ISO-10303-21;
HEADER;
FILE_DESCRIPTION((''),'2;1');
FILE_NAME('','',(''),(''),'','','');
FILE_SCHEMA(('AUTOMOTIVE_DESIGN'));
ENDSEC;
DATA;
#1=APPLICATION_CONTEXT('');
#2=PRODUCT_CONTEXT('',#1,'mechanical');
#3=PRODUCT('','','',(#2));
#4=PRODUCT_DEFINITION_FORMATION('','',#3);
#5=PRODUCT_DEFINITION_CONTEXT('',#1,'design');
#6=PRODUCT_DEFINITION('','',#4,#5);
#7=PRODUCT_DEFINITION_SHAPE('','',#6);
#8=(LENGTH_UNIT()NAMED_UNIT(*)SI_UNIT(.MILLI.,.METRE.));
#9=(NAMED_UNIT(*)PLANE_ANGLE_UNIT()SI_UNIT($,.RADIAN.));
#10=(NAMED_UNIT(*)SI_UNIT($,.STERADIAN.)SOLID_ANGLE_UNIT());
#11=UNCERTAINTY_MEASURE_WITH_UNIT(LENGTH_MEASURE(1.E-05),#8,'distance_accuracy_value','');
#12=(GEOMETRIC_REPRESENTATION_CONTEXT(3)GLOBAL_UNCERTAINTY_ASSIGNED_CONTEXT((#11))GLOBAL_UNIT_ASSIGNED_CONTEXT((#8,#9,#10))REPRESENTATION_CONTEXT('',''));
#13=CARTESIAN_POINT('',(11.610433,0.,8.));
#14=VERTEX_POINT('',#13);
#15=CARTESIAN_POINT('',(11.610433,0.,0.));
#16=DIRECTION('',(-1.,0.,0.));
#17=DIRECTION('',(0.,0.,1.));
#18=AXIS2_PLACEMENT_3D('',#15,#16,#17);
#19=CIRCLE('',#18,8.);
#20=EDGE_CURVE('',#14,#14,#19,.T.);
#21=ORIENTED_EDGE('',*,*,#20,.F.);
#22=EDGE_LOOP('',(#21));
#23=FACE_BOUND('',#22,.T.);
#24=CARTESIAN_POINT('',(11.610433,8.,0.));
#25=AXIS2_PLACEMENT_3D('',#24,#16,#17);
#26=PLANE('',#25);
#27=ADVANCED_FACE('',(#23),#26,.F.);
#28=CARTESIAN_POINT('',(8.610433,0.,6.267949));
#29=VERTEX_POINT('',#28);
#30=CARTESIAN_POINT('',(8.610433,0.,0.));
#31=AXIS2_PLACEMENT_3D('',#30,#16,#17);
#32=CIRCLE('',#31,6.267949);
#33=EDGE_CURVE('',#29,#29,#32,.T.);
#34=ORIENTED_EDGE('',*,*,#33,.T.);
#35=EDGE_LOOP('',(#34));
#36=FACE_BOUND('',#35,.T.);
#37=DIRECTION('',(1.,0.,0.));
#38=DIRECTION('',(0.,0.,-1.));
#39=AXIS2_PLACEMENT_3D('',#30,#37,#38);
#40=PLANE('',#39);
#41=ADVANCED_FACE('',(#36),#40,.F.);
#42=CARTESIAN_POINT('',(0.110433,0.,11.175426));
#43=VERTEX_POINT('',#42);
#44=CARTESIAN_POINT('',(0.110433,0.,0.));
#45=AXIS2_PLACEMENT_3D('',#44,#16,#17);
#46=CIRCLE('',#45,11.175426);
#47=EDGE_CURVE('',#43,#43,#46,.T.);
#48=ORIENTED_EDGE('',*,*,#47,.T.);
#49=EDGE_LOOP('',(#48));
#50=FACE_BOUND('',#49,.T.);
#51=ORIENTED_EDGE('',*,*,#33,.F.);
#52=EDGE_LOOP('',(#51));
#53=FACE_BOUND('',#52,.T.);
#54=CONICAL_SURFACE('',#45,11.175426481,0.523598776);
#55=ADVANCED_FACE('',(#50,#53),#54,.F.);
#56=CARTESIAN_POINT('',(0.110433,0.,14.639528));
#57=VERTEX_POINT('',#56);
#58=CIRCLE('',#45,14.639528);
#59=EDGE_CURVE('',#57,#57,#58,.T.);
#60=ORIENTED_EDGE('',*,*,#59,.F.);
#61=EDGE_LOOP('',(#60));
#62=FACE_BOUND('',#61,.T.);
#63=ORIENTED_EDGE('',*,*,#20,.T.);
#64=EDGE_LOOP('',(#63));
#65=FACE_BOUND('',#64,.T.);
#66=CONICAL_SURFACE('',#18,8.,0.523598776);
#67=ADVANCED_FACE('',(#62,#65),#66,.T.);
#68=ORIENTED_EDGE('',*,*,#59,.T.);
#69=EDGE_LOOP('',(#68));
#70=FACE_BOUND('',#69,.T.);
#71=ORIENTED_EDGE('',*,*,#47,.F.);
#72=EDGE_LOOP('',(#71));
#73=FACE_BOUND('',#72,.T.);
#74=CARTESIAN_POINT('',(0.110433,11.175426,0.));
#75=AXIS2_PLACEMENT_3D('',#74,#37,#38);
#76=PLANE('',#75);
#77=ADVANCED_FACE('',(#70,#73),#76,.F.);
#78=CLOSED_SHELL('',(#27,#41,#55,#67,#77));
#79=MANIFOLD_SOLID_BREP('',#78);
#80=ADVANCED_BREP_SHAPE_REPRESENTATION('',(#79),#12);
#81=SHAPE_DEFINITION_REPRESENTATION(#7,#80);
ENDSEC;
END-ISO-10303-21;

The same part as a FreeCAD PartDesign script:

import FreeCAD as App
import Part
import Sketcher
Q = App.Units.Quantity


def add_polygon(sketch, points):
    """Adds a closed chain of lines whose ends are joined by coincident constraints."""
    first, n = sketch.GeometryCount, len(points)
    for a, b in zip(points, points[1:] + points[:1]):
        sketch.addGeometry(Part.LineSegment(App.Vector(*a, 0), App.Vector(*b, 0)), False)
    for i in range(n):
        sketch.addConstraint(Sketcher.Constraint("Coincident", first + i, 2, first + (i + 1) % n, 1))

doc = App.newDocument("Part")
body = doc.addObject("PartDesign::Body", "Body")

# Sketch on XY plane
sketch1 = body.newObject("Sketcher::SketchObject", "Sketch")
sketch1.AttachmentSupport = (doc.getObject("XY_Plane"), [""])
sketch1.MapMode = "FlatFace"
add_polygon(sketch1, [(11.6, 8), (0.1, 14.6), (0.1, 11.2), (8.6, 6.3), (8.6, 0), (11.6, 0)])  # lines 0-5
sketch1.addConstraint(Sketcher.Constraint("Vertical", 1))
sketch1.addConstraint(Sketcher.Constraint("Vertical", 3))
sketch1.addConstraint(Sketcher.Constraint("Horizontal", 4))
sketch1.addConstraint(Sketcher.Constraint("Vertical", 5))
sketch1.addConstraint(Sketcher.Constraint("PointOnObject", 3, 2, -1))
sketch1.addConstraint(Sketcher.Constraint("Parallel", 0, 2))
sketch1.addConstraint(Sketcher.Constraint("DistanceX", 4, 1, 4, 2, 3.0))
sketch1.addConstraint(Sketcher.Constraint("DistanceY", 5, 1, 5, 2, 8.0))
sketch1.addConstraint(Sketcher.Constraint("Angle", 0, Q("150 deg")))
sketch1.addConstraint(Sketcher.Constraint("DistanceX", 1, 2, 2, 2, 8.5))
sketch1.addConstraint(Sketcher.Constraint("DistanceY", 1, 2, 1, 1, 3.464102))
sketch1.addConstraint(Sketcher.Constraint("DistanceX", -1, 1, 0, 2, 0.110433))
revolution = body.newObject("PartDesign::Revolution", "Revolution")
revolution.Profile = sketch1
revolution.ReferenceAxis = (sketch1, ["H_Axis"])
revolution.Angle = 360

doc.recompute()
